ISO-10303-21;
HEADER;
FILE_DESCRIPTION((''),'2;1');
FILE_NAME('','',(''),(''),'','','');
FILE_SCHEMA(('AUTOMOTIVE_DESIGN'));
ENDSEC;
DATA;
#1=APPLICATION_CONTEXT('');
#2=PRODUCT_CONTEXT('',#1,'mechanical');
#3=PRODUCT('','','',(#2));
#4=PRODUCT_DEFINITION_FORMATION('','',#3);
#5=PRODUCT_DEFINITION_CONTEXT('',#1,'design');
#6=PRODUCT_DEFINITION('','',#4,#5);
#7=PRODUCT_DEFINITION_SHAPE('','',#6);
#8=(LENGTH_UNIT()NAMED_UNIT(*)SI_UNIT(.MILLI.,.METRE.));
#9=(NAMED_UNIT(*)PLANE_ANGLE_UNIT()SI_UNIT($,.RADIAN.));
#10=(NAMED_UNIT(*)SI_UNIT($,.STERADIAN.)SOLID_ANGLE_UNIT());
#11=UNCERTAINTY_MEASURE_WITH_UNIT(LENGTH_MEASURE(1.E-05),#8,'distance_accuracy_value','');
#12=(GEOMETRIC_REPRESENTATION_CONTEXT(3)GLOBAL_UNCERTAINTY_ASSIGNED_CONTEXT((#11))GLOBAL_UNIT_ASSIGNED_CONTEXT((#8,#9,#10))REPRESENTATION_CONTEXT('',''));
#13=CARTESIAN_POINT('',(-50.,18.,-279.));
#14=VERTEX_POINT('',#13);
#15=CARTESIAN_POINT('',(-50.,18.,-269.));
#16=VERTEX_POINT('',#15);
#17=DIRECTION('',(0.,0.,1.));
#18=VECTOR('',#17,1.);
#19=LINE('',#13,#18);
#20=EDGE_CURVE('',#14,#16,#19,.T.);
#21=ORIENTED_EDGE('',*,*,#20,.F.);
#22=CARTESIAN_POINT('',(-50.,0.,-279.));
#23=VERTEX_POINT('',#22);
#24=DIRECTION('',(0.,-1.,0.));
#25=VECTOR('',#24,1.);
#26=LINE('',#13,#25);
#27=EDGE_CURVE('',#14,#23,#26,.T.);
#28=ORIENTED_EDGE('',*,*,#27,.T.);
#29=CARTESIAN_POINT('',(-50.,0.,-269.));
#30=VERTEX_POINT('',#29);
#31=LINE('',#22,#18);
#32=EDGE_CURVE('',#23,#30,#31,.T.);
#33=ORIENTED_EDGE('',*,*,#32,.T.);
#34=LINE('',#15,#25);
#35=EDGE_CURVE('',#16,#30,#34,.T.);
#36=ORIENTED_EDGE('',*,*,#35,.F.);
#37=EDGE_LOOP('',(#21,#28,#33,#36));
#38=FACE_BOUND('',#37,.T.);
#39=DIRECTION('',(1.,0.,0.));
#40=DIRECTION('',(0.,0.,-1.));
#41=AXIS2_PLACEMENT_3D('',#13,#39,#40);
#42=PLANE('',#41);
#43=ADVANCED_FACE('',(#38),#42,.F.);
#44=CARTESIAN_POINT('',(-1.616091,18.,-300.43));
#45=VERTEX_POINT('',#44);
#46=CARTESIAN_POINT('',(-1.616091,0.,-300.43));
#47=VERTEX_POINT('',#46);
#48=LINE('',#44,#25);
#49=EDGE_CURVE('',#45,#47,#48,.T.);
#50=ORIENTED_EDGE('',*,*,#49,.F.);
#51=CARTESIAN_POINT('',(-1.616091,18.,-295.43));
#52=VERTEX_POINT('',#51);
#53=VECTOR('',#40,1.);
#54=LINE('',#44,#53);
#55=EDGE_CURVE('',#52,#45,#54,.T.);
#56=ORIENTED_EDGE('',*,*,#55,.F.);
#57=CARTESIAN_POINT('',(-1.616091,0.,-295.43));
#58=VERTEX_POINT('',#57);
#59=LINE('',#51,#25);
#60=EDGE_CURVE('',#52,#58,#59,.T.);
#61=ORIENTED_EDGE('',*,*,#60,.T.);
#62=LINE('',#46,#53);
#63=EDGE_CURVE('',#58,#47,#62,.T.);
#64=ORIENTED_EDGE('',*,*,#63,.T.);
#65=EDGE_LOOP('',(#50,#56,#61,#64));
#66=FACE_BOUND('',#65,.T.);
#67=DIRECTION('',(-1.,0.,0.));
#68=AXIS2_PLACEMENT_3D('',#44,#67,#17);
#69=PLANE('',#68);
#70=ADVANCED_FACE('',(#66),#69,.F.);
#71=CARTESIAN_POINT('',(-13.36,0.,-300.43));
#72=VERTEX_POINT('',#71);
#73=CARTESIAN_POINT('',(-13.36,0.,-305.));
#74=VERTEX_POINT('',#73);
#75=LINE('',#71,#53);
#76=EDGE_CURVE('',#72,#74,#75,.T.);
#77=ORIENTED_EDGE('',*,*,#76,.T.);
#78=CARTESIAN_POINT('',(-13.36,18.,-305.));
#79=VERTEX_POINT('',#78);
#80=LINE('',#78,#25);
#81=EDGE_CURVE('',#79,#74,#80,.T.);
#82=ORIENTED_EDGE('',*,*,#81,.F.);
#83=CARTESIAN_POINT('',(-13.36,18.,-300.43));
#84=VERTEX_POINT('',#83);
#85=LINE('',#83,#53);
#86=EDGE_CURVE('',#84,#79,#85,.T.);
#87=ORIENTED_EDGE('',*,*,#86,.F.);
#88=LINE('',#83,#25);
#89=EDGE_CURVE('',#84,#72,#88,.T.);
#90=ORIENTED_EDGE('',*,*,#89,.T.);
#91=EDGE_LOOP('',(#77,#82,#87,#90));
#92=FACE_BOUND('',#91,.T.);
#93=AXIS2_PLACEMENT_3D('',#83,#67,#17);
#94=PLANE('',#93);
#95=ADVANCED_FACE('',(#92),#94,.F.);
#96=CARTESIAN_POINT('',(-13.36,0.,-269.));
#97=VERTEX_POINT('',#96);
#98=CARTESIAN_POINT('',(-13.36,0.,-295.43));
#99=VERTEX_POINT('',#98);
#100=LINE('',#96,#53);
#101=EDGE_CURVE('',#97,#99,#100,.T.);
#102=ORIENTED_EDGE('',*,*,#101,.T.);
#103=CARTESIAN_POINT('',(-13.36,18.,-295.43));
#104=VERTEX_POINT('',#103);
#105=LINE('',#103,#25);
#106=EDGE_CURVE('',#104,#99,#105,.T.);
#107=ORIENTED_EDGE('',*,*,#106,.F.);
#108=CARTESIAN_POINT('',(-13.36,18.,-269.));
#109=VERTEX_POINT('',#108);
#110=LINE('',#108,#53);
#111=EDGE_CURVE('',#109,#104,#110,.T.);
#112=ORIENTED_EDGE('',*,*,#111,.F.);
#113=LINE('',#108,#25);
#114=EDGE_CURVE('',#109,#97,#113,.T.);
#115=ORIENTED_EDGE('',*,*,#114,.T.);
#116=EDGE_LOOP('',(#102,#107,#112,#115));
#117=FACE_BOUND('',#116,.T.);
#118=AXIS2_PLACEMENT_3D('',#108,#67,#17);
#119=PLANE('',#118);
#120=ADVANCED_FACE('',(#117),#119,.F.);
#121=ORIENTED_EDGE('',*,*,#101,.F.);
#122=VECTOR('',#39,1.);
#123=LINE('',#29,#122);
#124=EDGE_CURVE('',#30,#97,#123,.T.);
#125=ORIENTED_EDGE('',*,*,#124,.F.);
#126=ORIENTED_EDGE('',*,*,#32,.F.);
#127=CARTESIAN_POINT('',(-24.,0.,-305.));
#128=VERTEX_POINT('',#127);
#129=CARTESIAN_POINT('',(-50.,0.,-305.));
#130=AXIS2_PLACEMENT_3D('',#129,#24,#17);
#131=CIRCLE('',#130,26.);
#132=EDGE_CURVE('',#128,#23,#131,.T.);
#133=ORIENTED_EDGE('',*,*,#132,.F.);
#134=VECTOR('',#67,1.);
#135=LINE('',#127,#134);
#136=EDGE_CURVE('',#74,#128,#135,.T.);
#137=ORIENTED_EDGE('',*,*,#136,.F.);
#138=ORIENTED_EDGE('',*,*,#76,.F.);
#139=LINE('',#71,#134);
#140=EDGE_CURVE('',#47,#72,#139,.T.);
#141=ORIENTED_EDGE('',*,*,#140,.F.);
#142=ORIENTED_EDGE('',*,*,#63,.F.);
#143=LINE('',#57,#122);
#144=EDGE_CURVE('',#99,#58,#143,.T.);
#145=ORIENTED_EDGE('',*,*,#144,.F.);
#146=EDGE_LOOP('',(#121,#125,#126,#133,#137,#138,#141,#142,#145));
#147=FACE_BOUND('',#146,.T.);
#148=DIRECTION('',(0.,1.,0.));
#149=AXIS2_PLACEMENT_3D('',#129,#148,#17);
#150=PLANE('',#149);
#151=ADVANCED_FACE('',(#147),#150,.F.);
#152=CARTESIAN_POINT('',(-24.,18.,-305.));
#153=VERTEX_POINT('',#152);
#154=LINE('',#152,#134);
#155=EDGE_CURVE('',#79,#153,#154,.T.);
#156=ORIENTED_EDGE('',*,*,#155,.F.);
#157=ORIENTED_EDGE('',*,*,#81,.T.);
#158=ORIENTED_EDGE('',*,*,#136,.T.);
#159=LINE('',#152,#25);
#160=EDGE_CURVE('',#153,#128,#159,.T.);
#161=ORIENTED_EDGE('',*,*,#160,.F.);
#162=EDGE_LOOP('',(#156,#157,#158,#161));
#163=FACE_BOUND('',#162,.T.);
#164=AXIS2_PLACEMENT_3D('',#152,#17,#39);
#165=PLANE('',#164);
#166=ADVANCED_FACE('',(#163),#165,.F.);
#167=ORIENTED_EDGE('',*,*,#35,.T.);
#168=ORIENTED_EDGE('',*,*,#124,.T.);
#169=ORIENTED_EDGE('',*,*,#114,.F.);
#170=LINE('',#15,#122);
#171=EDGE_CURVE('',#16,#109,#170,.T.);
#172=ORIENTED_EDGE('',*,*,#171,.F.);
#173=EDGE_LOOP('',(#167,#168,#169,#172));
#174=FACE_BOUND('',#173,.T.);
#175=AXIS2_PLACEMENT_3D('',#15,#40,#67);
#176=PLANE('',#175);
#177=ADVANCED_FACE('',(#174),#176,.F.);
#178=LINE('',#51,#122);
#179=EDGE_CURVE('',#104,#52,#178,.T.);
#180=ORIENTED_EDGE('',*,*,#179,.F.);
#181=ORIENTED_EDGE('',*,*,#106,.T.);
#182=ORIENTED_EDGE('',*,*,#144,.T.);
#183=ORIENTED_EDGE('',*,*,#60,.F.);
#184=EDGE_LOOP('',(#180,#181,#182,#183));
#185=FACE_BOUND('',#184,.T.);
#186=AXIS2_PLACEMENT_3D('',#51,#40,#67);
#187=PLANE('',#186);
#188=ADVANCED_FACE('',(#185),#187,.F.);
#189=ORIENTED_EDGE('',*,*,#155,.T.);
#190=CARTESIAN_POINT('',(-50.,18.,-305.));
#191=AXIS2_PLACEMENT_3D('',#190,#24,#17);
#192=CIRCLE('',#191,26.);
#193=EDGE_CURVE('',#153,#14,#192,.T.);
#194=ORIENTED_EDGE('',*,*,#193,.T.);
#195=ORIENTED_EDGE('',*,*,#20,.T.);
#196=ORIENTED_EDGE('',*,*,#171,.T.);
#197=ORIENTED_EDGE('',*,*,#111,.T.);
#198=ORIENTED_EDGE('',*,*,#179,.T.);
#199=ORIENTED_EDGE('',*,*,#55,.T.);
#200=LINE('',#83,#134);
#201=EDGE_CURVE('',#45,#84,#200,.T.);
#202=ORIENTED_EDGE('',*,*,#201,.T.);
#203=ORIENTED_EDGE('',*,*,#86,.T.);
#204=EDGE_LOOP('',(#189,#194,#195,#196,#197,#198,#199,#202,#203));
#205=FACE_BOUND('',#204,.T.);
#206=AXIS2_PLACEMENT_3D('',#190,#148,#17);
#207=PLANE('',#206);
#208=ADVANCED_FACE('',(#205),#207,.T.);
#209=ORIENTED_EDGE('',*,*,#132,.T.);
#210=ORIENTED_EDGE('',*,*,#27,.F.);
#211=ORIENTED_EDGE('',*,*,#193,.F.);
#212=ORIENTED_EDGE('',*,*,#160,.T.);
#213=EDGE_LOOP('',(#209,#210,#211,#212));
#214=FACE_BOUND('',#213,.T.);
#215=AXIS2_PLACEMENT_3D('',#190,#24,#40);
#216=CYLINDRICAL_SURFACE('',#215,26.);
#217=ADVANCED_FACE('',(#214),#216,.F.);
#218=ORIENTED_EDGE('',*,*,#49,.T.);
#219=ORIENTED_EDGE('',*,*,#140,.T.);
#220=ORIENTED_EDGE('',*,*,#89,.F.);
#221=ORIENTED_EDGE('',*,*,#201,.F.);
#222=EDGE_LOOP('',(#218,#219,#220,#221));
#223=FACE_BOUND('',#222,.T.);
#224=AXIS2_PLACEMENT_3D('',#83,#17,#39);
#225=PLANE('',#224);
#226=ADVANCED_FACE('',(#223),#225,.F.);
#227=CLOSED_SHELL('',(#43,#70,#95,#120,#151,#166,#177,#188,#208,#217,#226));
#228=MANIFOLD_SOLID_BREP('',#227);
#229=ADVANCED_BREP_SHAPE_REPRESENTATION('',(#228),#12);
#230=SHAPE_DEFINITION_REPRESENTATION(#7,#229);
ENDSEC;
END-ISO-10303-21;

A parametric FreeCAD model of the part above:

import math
import FreeCAD as App
import Part
import Sketcher
from FreeCAD import Vector

doc = App.newDocument("Part")
body = doc.addObject("PartDesign::Body", "Body")

sketch1 = body.newObject("Sketcher::SketchObject", "Sketch")
sketch1.AttachmentSupport = (doc.getObject("XZ_Plane"), [""])
sketch1.MapMode = "FlatFace"
sketch1.addGeometry([
    Part.LineSegment(Vector(-13.36, -305, 0), Vector(-24, -305, 0)),
    Part.ArcOfCircle(Part.Circle(Vector(-50, -305, 0), Vector(0, 0, 1), 26), math.radians(0), math.radians(90)),
    Part.LineSegment(Vector(-50, -279, 0), Vector(-50, -269, 0)),
    Part.LineSegment(Vector(-50, -269, 0), Vector(-13.36, -269, 0)),
    Part.LineSegment(Vector(-13.36, -269, 0), Vector(-13.36, -295.43, 0)),
    Part.LineSegment(Vector(-13.36, -295.43, 0), Vector(-1.616091, -295.43, 0)),
    Part.LineSegment(Vector(-1.616091, -295.43, 0), Vector(-1.616091, -300.43, 0)),
    Part.LineSegment(Vector(-1.616091, -300.43, 0), Vector(-13.36, -300.43, 0)),
    Part.LineSegment(Vector(-13.36, -300.43, 0), Vector(-13.36, -305, 0)),
], False)
sketch1.addConstraint([
    Sketcher.Constraint("Coincident", 0, 2, 1, 1),
    Sketcher.Constraint("Coincident", 1, 2, 2, 1),
    Sketcher.Constraint("Coincident", 2, 2, 3, 1),
    Sketcher.Constraint("Coincident", 3, 2, 4, 1),
    Sketcher.Constraint("Coincident", 4, 2, 5, 1),
    Sketcher.Constraint("Coincident", 5, 2, 6, 1),
    Sketcher.Constraint("Coincident", 6, 2, 7, 1),
    Sketcher.Constraint("Coincident", 7, 2, 8, 1),
    Sketcher.Constraint("Coincident", 8, 2, 0, 1),
    Sketcher.Constraint("Horizontal", 0),
    Sketcher.Constraint("Vertical", 2),
    Sketcher.Constraint("Horizontal", 3),
    Sketcher.Constraint("Vertical", 4),
    Sketcher.Constraint("Horizontal", 5),
    Sketcher.Constraint("Vertical", 6),
    Sketcher.Constraint("Horizontal", 7),
    Sketcher.Constraint("Vertical", 8),
    Sketcher.Constraint("Horizontal", 1, 3, 0, 2),
    Sketcher.Constraint("Vertical", 4, 2, 7, 2),
    Sketcher.Constraint("Radius", 1, 26.0),
    Sketcher.Constraint("DistanceY", 2, 1, 2, 2, 10.0),
    Sketcher.Constraint("DistanceY", 6, 2, 6, 1, 5.0),
    Sketcher.Constraint("DistanceX", 1, 3, -1, 1, 50.0),
    Sketcher.Constraint("DistanceY", 1, 3, -1, 1, 305.0),
    Sketcher.Constraint("DistanceX", 1, 2, -1, 1, 50.0),
    Sketcher.Constraint("DistanceX", 0, 2, 0, 1, 10.64),
    Sketcher.Constraint("DistanceY", 4, 2, 4, 1, 26.43),
    Sketcher.Constraint("DistanceX", 5, 1, 5, 2, 11.743909),
])
pad1 = body.newObject("PartDesign::Pad", "Pad")
pad1.Profile = sketch1
pad1.Length = 18
pad1.Reversed = True

doc.recompute()
